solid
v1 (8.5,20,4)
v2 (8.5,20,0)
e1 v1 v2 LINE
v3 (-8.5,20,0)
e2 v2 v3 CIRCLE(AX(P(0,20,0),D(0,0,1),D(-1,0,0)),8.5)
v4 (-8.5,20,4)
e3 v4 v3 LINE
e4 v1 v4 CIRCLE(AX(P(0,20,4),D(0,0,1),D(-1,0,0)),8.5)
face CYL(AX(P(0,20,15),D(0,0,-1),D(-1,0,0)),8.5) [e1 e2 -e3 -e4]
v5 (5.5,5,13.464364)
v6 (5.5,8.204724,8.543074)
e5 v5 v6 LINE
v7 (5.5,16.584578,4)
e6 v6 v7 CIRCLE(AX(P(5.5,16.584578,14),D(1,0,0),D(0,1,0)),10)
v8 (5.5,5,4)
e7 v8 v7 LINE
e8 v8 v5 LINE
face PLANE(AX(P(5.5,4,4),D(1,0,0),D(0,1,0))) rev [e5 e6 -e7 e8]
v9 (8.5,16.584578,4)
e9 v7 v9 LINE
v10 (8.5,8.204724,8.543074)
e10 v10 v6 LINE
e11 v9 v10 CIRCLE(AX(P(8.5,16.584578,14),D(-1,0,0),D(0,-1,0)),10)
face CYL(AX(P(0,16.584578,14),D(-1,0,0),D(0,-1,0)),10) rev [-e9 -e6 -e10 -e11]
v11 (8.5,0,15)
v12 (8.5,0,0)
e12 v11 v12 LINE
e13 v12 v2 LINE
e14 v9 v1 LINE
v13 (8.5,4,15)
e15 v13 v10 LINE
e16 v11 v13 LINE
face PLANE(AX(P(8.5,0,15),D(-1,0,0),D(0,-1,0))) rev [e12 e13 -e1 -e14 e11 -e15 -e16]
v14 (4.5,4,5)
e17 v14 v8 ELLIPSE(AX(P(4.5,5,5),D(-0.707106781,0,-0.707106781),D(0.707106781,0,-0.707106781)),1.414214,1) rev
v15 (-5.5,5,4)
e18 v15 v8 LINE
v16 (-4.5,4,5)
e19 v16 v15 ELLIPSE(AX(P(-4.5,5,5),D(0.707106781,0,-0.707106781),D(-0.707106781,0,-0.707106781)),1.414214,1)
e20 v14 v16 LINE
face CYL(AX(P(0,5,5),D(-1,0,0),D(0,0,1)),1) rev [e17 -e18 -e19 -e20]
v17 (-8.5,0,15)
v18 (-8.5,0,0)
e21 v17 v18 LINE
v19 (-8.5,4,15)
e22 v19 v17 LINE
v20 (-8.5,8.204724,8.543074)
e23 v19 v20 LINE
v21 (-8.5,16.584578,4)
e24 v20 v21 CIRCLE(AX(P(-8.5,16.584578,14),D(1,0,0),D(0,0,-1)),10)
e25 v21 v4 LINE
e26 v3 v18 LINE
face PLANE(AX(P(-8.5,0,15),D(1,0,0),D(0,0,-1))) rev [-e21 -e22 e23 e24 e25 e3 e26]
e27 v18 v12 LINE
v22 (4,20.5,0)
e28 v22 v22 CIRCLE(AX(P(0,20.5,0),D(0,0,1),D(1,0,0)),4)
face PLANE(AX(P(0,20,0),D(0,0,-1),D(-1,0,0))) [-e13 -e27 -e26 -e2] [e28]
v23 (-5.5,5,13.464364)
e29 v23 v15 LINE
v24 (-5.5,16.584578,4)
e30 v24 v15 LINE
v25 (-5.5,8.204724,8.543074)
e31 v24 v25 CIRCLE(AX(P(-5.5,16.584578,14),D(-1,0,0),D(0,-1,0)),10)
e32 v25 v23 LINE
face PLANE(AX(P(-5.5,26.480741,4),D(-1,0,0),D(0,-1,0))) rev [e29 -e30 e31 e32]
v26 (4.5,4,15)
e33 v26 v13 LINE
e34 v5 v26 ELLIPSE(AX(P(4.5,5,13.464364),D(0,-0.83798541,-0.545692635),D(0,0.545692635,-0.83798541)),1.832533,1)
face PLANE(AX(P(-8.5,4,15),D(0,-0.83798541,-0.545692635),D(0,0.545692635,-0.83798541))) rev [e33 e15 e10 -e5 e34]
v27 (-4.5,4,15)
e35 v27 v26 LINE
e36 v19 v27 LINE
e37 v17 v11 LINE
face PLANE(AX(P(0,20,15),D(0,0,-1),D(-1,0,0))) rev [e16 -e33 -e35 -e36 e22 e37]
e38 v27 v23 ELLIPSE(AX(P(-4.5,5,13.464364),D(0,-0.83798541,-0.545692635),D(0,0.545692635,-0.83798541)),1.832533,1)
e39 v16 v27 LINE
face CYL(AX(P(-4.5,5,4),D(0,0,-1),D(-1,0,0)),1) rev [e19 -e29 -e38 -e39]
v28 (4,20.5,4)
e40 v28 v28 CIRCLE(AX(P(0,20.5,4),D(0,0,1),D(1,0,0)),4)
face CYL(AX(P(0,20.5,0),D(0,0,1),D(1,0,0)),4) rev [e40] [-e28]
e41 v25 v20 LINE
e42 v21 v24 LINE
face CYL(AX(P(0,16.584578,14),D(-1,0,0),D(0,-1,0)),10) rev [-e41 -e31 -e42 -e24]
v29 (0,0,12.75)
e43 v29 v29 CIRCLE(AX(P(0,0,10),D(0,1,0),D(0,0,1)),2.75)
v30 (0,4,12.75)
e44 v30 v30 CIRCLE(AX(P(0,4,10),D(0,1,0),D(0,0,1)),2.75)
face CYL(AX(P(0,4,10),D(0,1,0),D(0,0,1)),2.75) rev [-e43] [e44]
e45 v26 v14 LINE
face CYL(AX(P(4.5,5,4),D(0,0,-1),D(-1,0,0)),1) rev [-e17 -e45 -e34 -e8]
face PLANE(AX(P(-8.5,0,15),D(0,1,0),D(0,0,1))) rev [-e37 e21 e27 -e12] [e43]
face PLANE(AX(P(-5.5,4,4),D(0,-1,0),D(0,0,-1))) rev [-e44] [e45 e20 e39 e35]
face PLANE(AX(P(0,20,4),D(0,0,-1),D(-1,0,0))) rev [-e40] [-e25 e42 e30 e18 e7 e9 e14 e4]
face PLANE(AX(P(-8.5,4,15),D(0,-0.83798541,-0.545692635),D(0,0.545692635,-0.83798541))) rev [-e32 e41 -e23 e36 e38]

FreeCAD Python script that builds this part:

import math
import FreeCAD as App
import Part
import Sketcher
from FreeCAD import Vector
Q = App.Units.Quantity


def edges_at(feature, points):
    """Names of the edges that pass closest to the given points."""
    edges = feature.Shape.Edges
    near = lambda p: min(range(len(edges)), key=lambda i: edges[i].distToShape(Part.Vertex(*p))[0])
    return sorted({f"Edge{near(p) + 1}" for p in points})

doc = App.newDocument("Part")
body = doc.addObject("PartDesign::Body", "Body")

# Sketch on XY plane
sketch1 = body.newObject("Sketcher::SketchObject", "Sketch")
sketch1.AttachmentSupport = (doc.getObject("XY_Plane"), [""])
sketch1.MapMode = "FlatFace"
sketch1.addGeometry([
    Part.LineSegment(Vector(-8, 0, 0), Vector(8, 0, 0)),
    Part.LineSegment(Vector(8, 0, 0), Vector(8, 20, 0)),
    Part.ArcOfCircle(Part.Circle(Vector(0, 20, 0), Vector(0, 0, 1), 8), math.radians(0), math.radians(180)),
    Part.LineSegment(Vector(-8, 20, 0), Vector(-8, 0, 0)),
], False)
sketch1.addConstraint([
    Sketcher.Constraint("Coincident", 0, 2, 1, 1),
    Sketcher.Constraint("Tangent", 1, 2, 2, 1),
    Sketcher.Constraint("Tangent", 2, 2, 3, 1),
    Sketcher.Constraint("Coincident", 3, 2, 0, 1),
    Sketcher.Constraint("Horizontal", 0),
    Sketcher.Constraint("Vertical", 1),
    Sketcher.Constraint("Vertical", 3),
    Sketcher.Constraint("Symmetric", 0, 2, 3, 2, -1, 1),
    Sketcher.Constraint("Radius", 2, Q("8.5 mm")),
    Sketcher.Constraint("DistanceY", 1, 1, 1, 2, Q("20 mm")),
])
pad1 = body.newObject("PartDesign::Pad", "Pad")
pad1.Profile = sketch1
pad1.Length = 15

# Sketch on XY plane
sketch2 = body.newObject("Sketcher::SketchObject", "Sketch001")
sketch2.AttachmentSupport = (doc.getObject("XY_Plane"), [""])
sketch2.MapMode = "FlatFace"
sketch2.AttachmentOffset = App.Placement(Vector(0, 0, 4), App.Rotation())
sketch2.addGeometry([
    Part.LineSegment(Vector(-6, 4, 0), Vector(6, 4, 0)),
    Part.LineSegment(Vector(6, 4, 0), Vector(6, 26, 0)),
    Part.ArcOfCircle(Part.Circle(Vector(0, 20, 0), Vector(0, 0, 1), 8), math.radians(50), math.radians(130)),
    Part.LineSegment(Vector(-6, 26, 0), Vector(-6, 4, 0)),
], False)
sketch2.addConstraint([
    Sketcher.Constraint("Coincident", 0, 2, 1, 1),
    Sketcher.Constraint("Coincident", 1, 2, 2, 1),
    Sketcher.Constraint("Coincident", 2, 2, 3, 1),
    Sketcher.Constraint("Coincident", 3, 2, 0, 1),
    Sketcher.Constraint("Horizontal", 0),
    Sketcher.Constraint("Vertical", 1),
    Sketcher.Constraint("Vertical", 3),
    Sketcher.Constraint("Symmetric", 1, 2, 2, 2, -2),
    Sketcher.Constraint("Radius", 2, Q("8.5 mm")),
    Sketcher.Constraint("DistanceX", 0, 1, 0, 2, Q("11 mm")),
    Sketcher.Constraint("DistanceY", -1, 1, 2, 3, Q("20 mm")),
    Sketcher.Constraint("DistanceY", -1, 1, 0, 2, Q("4 mm")),
])
pocket1 = body.newObject("PartDesign::Pocket", "Pocket")
pocket1.Profile = sketch2
pocket1.Length = 11
pocket1.Reversed = True

# Sketch on YZ plane
sketch3 = body.newObject("Sketcher::SketchObject", "Sketch002")
sketch3.AttachmentSupport = (doc.getObject("YZ_Plane"), [""])
sketch3.MapMode = "FlatFace"
sketch3.AttachmentOffset = App.Placement(Vector(0, 0, 8.5), App.Rotation())
sketch3.addGeometry([
    Part.LineSegment(Vector(4, 15, 0), Vector(11, 4, 0)),
    Part.LineSegment(Vector(11, 4, 0), Vector(28, 4, 0)),
    Part.LineSegment(Vector(28, 4, 0), Vector(28, 15, 0)),
    Part.LineSegment(Vector(28, 15, 0), Vector(4, 15, 0)),
], False)
sketch3.addConstraint([
    Sketcher.Constraint("Coincident", 0, 2, 1, 1),
    Sketcher.Constraint("Coincident", 1, 2, 2, 1),
    Sketcher.Constraint("Coincident", 2, 2, 3, 1),
    Sketcher.Constraint("Coincident", 3, 2, 0, 1),
    Sketcher.Constraint("Horizontal", 1),
    Sketcher.Constraint("Vertical", 2),
    Sketcher.Constraint("Horizontal", 3),
    Sketcher.Constraint("DistanceY", 2, 1, 2, 2, Q("11 mm")),
    Sketcher.Constraint("DistanceX", 3, 2, 3, 1, Q("24.5 mm")),
    Sketcher.Constraint("DistanceY", -1, 1, 0, 2, Q("4 mm")),
    Sketcher.Constraint("DistanceX", -1, 1, 3, 2, Q("4 mm")),
    Sketcher.Constraint("Distance", 0, Q("13.12672 mm")),
])
pocket2 = body.newObject("PartDesign::Pocket", "Pocket001")
pocket2.Profile = sketch3
pocket2.Type = "ThroughAll"
doc.recompute()

fillet = body.newObject("PartDesign::Fillet", "Fillet")
fillet.Base = (pocket2, edges_at(pocket2, [(-7, 11.163, 4), (7, 11.163, 4)]))
fillet.Radius = 10
doc.recompute()

fillet2 = body.newObject("PartDesign::Fillet", "Fillet001")
fillet2.Base = (fillet, edges_at(fillet, [(-5.5, 4, 9.5), (0, 4, 4), (5.5, 4, 9.5)]))
fillet2.Radius = 1

# Sketch on XZ plane
sketch4 = body.newObject("Sketcher::SketchObject", "Sketch003")
sketch4.AttachmentSupport = (doc.getObject("XZ_Plane"), [""])
sketch4.MapMode = "FlatFace"
sketch4.AttachmentOffset = App.Placement(Vector(0, 0, -4), App.Rotation())
sketch4.addGeometry(Part.Circle(Vector(0, 10, 0), Vector(0, 0, 1), 2.8), False)
sketch4.addConstraint([
    Sketcher.Constraint("PointOnObject", 0, 3, -2),
    Sketcher.Constraint("Diameter", 0, Q("5.5 mm")),
    Sketcher.Constraint("DistanceY", -1, 1, 0, 3, Q("10 mm")),
])
doc.recompute()
hole = body.newObject("PartDesign::Hole", "Hole")
hole.Profile = sketch4
hole.ThreadType = "None"
hole.Diameter = 5.5
hole.DepthType = "ThroughAll"
hole.Reversed = True

# Sketch on XY plane
sketch5 = body.newObject("Sketcher::SketchObject", "Sketch004")
sketch5.AttachmentSupport = (doc.getObject("XY_Plane"), [""])
sketch5.MapMode = "FlatFace"
sketch5.AttachmentOffset = App.Placement(Vector(0, 0, 4), App.Rotation())
sketch5.addGeometry(Part.Circle(Vector(0, 20.5, 0), Vector(0, 0, 1), 4), False)
sketch5.addConstraint([
    Sketcher.Constraint("PointOnObject", 0, 3, -2),
    Sketcher.Constraint("Diameter", 0, Q("8 mm")),
    Sketcher.Constraint("DistanceY", -1, 1, 0, 3, Q("20.5 mm")),
])
pocket3 = body.newObject("PartDesign::Pocket", "Pocket002")
pocket3.Profile = sketch5
pocket3.Type = "ThroughAll"

doc.recompute()
